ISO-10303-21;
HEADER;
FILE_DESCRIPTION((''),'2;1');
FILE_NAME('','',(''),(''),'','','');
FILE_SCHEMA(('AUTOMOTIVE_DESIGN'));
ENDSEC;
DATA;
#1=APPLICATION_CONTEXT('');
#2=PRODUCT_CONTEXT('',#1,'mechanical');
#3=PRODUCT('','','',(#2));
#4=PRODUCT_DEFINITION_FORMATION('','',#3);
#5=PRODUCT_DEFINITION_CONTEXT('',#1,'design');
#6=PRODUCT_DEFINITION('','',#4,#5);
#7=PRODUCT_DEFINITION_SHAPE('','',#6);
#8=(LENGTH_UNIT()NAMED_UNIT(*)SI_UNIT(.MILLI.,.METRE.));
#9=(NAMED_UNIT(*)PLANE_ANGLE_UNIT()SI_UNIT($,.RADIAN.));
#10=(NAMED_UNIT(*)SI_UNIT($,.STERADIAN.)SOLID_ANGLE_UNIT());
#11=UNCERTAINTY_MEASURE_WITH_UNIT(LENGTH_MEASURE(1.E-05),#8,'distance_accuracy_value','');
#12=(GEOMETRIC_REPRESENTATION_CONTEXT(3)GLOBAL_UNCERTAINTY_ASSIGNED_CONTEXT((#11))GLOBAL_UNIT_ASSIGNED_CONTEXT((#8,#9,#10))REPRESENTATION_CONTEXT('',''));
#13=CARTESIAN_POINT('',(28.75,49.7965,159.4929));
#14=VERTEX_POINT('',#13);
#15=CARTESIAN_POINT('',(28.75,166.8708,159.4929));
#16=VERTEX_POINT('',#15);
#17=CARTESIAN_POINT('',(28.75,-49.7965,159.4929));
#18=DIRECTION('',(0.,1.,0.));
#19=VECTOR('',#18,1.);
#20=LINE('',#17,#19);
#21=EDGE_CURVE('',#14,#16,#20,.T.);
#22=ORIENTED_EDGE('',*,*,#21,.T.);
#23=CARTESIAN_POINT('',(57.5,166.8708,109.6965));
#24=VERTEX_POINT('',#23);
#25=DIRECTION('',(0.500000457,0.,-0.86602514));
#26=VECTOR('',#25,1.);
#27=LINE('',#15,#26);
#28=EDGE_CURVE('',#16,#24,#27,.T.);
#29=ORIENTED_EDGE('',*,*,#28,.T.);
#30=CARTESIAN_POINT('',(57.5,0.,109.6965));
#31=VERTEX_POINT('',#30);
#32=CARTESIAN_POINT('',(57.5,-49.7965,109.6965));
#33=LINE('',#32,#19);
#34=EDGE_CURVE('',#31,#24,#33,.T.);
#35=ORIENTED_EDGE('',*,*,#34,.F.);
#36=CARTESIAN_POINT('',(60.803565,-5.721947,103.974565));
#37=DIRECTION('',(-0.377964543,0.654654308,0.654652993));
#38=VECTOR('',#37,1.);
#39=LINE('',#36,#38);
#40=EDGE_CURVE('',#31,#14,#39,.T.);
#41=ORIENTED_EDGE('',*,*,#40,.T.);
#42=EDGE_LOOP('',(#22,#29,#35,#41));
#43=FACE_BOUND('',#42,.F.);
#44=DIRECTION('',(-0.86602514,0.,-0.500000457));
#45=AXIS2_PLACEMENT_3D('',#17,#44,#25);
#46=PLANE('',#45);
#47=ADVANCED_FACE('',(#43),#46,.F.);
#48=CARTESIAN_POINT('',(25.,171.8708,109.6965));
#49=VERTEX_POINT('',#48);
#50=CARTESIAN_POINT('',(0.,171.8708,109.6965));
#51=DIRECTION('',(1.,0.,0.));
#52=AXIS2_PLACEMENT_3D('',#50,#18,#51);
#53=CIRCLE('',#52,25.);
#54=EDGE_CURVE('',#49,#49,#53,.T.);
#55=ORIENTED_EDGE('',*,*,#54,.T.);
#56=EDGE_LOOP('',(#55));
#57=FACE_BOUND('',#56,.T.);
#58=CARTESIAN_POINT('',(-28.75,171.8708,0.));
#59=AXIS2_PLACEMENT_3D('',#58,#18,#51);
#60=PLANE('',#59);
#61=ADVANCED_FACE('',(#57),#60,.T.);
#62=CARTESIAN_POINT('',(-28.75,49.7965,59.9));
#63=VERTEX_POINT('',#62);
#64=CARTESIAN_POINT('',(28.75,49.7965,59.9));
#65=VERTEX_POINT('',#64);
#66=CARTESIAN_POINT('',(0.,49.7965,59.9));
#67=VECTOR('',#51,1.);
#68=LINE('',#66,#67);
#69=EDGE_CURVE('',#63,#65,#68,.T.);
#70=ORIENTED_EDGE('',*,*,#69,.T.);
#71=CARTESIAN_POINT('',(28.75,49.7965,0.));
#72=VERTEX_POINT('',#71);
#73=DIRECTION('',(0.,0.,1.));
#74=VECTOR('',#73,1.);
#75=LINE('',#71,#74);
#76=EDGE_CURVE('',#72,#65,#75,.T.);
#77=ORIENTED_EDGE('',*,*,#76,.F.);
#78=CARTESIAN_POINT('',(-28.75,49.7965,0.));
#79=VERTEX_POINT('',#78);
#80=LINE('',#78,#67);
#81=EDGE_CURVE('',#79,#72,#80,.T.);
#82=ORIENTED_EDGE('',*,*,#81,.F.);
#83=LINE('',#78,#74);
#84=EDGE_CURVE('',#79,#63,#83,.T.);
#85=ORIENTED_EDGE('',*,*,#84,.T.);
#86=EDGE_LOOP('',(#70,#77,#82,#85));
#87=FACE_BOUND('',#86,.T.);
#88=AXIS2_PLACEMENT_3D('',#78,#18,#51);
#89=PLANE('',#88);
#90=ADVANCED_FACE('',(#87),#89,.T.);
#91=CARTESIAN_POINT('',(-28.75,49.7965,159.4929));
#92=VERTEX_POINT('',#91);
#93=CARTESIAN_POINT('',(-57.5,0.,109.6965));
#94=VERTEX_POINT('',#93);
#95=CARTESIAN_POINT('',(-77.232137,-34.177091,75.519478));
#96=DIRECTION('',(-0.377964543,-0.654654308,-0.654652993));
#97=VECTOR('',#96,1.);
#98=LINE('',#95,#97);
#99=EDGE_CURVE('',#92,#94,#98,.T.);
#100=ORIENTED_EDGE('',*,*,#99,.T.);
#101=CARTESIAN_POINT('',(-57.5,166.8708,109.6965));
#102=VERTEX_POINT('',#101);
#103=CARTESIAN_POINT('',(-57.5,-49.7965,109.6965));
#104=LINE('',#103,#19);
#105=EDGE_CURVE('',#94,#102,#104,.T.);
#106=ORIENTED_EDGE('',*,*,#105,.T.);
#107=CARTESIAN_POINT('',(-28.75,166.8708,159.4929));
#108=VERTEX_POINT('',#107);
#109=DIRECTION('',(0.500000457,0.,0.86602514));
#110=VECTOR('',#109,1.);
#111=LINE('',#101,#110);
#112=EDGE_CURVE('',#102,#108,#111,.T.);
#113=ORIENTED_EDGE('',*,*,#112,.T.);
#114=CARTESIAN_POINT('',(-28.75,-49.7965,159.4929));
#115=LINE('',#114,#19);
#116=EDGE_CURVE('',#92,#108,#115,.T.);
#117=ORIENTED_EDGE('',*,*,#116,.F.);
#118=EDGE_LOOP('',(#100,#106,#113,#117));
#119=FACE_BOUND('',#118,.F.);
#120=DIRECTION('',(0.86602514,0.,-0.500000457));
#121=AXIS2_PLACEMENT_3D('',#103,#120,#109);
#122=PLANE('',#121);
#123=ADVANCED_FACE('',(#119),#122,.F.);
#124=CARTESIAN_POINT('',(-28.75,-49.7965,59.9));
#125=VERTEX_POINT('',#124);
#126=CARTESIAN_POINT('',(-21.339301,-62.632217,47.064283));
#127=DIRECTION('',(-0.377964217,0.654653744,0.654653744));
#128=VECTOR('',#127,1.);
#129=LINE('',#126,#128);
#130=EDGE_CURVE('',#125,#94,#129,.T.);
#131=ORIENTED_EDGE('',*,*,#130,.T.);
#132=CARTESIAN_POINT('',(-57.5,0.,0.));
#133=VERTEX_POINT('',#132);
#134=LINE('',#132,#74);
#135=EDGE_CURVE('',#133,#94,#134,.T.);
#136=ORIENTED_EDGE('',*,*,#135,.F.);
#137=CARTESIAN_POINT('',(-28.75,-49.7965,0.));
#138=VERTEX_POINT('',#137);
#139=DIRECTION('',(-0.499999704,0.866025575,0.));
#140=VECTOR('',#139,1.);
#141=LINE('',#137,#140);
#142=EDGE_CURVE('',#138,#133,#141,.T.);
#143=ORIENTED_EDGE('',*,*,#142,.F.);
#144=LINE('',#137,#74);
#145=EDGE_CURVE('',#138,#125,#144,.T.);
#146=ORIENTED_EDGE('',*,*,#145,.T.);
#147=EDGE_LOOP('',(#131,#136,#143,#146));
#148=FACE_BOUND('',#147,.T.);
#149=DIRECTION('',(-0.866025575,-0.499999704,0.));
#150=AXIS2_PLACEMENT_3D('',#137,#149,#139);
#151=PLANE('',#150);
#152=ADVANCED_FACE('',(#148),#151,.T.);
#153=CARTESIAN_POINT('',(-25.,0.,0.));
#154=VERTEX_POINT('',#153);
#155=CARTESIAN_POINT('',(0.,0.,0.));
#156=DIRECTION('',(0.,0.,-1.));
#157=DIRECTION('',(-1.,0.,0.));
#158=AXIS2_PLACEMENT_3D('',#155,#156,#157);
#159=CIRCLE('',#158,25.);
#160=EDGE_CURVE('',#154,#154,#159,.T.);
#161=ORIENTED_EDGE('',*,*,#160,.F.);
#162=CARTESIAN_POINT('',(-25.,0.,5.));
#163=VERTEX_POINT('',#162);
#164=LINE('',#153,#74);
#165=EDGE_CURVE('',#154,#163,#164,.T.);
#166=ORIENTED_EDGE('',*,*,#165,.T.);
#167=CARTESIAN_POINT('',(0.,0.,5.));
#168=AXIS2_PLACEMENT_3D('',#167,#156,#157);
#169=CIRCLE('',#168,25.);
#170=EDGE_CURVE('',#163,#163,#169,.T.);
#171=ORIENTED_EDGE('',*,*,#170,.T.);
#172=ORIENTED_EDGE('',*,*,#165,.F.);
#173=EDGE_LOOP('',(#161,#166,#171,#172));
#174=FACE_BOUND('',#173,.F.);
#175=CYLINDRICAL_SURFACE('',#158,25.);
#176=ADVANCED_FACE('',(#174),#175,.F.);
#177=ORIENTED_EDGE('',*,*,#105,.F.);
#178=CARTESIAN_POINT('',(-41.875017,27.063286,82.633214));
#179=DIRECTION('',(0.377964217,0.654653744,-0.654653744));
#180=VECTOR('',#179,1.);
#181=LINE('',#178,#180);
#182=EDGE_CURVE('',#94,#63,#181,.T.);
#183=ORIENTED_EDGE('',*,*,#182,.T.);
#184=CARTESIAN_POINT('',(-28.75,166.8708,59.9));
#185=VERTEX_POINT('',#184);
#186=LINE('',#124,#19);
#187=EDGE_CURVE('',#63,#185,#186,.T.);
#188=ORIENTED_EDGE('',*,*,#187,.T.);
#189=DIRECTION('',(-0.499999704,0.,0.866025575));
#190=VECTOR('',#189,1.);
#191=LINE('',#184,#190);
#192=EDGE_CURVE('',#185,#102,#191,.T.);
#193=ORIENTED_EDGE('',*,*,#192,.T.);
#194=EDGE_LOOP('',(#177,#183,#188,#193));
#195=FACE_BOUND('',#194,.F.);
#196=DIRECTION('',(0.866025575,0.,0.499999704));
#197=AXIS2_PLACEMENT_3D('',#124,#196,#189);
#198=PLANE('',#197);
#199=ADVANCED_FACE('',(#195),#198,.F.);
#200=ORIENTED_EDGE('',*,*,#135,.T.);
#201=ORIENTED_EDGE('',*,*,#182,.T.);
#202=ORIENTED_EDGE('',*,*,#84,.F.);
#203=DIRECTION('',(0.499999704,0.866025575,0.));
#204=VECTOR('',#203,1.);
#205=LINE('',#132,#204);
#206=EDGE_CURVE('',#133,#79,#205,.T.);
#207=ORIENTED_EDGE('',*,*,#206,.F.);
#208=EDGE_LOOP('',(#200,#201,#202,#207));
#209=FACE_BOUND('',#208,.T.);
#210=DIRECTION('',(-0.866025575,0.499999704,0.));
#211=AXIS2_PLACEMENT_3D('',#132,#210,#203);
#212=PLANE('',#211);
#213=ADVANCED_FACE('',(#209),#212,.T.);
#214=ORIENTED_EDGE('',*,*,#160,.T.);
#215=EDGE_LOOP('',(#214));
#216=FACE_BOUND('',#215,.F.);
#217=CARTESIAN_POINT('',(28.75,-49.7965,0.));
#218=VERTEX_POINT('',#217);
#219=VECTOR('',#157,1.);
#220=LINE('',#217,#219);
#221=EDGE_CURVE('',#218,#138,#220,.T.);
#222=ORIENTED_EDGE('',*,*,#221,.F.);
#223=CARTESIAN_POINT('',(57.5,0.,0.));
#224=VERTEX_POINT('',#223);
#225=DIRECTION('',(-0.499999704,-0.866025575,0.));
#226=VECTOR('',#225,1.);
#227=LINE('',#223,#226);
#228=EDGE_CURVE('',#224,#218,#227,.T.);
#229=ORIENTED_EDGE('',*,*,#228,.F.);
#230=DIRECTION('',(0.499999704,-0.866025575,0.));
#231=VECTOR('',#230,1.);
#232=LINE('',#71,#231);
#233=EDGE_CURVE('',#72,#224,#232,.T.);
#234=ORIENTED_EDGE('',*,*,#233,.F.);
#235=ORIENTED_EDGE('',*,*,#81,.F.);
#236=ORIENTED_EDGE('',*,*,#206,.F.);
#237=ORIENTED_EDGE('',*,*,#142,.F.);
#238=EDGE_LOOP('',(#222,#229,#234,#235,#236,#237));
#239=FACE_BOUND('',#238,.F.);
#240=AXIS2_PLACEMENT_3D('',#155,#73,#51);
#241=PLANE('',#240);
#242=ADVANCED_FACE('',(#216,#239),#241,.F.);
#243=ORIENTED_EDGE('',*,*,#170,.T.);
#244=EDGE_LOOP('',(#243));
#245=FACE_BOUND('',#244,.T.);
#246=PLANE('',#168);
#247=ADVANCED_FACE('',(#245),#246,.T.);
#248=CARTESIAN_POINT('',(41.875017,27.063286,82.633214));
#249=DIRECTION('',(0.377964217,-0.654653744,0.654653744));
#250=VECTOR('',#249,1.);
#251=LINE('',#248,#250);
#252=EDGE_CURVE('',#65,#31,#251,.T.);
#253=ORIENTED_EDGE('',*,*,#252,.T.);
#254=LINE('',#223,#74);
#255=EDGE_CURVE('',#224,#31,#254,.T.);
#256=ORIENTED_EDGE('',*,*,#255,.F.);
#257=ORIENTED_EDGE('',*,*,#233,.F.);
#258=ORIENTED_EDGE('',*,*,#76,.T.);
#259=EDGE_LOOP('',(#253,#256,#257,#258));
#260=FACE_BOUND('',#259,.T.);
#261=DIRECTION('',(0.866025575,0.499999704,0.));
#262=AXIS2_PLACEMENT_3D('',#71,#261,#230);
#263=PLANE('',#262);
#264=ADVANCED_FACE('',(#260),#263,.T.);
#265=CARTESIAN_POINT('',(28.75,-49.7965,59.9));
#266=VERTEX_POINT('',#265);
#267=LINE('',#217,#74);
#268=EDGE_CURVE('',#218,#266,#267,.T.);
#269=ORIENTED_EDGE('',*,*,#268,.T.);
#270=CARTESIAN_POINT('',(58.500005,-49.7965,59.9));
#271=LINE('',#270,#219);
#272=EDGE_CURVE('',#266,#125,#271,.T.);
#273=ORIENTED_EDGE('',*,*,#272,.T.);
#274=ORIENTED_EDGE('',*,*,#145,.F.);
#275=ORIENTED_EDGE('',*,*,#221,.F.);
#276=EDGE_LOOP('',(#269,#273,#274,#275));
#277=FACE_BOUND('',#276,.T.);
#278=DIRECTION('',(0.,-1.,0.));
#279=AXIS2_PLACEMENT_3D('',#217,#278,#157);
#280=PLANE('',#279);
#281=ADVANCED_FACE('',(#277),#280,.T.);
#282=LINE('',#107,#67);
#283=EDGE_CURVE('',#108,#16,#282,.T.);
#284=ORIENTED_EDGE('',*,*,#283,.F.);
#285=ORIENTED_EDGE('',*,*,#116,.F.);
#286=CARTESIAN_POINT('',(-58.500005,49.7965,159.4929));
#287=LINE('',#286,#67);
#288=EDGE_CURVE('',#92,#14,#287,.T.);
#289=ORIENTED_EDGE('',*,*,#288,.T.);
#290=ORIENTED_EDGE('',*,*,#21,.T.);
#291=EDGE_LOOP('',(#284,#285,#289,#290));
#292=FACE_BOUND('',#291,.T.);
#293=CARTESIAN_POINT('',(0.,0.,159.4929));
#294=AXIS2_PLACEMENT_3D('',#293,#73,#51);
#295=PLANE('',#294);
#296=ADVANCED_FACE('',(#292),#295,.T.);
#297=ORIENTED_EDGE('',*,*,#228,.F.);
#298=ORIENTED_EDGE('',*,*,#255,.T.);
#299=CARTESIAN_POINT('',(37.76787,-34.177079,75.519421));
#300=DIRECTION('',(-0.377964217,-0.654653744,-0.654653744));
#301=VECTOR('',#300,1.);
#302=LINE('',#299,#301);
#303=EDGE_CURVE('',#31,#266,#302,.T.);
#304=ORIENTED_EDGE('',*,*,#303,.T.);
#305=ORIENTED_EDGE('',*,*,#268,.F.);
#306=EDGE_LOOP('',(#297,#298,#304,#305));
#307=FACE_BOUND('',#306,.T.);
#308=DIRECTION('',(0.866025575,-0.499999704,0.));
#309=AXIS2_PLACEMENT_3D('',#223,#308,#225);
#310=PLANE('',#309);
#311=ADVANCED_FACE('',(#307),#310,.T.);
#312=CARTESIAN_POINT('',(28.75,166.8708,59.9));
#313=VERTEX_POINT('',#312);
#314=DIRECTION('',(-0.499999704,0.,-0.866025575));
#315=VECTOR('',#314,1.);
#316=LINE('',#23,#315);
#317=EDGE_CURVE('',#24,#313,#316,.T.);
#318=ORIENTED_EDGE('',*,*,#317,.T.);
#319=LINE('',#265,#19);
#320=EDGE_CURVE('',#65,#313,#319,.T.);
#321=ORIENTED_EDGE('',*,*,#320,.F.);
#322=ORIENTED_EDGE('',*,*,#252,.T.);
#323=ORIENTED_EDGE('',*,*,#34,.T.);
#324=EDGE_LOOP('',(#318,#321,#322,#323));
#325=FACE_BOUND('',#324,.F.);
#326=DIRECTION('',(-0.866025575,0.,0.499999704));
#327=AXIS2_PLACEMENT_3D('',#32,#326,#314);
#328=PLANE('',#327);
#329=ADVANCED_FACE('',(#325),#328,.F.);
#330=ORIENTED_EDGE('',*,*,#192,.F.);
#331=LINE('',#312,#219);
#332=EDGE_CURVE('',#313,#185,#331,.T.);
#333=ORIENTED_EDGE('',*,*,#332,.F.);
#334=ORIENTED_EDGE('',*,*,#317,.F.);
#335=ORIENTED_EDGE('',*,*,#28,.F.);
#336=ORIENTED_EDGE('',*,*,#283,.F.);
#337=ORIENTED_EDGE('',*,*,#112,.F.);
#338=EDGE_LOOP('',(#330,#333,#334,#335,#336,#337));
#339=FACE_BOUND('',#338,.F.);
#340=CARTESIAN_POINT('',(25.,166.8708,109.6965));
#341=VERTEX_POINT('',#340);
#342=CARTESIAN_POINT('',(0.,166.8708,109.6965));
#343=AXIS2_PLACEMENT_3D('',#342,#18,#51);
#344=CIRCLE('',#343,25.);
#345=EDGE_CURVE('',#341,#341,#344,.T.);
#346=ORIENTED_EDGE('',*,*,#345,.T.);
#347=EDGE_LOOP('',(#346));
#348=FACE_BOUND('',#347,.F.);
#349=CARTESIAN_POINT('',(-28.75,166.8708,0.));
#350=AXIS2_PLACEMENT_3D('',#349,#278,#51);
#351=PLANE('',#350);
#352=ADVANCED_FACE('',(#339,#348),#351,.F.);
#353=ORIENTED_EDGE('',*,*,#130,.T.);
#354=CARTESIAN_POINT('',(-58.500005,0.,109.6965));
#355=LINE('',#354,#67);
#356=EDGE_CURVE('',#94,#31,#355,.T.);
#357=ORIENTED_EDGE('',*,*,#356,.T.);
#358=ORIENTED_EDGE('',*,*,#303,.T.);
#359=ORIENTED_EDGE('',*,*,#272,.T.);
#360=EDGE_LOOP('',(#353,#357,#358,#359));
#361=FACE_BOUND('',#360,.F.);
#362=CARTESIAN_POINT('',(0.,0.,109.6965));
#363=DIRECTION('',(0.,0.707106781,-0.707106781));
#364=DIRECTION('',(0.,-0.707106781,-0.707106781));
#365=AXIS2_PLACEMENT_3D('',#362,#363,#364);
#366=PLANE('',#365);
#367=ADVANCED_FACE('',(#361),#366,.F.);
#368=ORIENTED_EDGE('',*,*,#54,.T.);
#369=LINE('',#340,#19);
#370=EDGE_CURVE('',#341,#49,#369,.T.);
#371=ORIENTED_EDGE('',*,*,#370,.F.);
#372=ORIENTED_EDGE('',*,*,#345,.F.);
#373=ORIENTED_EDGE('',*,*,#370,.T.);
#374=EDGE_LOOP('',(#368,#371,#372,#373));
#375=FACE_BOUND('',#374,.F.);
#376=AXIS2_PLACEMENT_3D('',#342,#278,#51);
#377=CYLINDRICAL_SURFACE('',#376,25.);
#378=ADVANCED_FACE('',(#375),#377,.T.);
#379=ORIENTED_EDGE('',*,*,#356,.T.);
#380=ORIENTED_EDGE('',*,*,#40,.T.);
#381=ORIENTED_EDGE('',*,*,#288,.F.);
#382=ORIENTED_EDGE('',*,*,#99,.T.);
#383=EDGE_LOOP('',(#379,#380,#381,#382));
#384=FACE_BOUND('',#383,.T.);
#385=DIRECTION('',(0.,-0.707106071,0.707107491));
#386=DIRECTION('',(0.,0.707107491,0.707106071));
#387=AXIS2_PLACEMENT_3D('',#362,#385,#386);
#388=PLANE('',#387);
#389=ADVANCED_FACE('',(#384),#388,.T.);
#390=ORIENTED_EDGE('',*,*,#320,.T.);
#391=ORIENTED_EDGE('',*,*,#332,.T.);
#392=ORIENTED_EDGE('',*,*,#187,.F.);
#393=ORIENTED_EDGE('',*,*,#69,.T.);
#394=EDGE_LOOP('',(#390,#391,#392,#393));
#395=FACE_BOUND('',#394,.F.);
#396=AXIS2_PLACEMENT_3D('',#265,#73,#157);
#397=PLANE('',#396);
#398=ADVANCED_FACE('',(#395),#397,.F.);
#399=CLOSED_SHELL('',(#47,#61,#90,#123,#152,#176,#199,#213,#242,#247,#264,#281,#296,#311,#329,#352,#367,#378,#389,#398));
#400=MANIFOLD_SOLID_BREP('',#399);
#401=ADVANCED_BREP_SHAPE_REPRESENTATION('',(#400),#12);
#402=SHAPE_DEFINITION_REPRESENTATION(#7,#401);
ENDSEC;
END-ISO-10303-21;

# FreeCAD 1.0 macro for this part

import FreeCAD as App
import Part
import Sketcher
from FreeCAD import Vector
Q = App.Units.Quantity


def add_polygon(sketch, points):
    """Adds a closed chain of lines whose ends are joined by coincident constraints."""
    first, n = sketch.GeometryCount, len(points)
    for a, b in zip(points, points[1:] + points[:1]):
        sketch.addGeometry(Part.LineSegment(App.Vector(*a, 0), App.Vector(*b, 0)), False)
    for i in range(n):
        sketch.addConstraint(Sketcher.Constraint("Coincident", first + i, 2, first + (i + 1) % n, 1))

doc = App.newDocument("Part")
body = doc.addObject("PartDesign::Body", "Body")

# Sketch on XY plane
sketch1 = doc.addObject("Sketcher::SketchObject", "Sketch")
body.addObject(sketch1)
sketch1.AttachmentSupport = (doc.XY_Plane, [""])
sketch1.MapMode = "FlatFace"
add_polygon(sketch1, [(29, -50), (58, 0), (29, 50), (-29, 50), (-58, 0), (-29, -50)])  # lines 0-5
sketch1.addConstraint(Sketcher.Constraint("Horizontal", 2))
sketch1.addConstraint(Sketcher.Constraint("Horizontal", 5))
sketch1.addConstraint(Sketcher.Constraint("Symmetric", 0, 2, 3, 2, -1, 1))
sketch1.addConstraint(Sketcher.Constraint("Symmetric", 1, 2, 4, 2, -1, 1))
sketch1.addConstraint(Sketcher.Constraint("PointOnObject", 0, 2, -1))
sketch1.addConstraint(Sketcher.Constraint("Parallel", 0, 3))
sketch1.addConstraint(Sketcher.Constraint("Vertical", 2, 2, 4, 2))
sketch1.addConstraint(Sketcher.Constraint("DistanceX", 3, 2, 0, 2, 115.0))
sketch1.addConstraint(Sketcher.Constraint("Angle", 0, Q("60 deg")))
sketch1.addConstraint(Sketcher.Constraint("DistanceX", 2, 2, 2, 1, 57.5))
pad1 = doc.addObject("PartDesign::Pad", "Pad")
body.addObject(pad1)
pad1.Profile = sketch1
pad1.Length = 159.4929

# Sketch on XZ plane
sketch2 = doc.addObject("Sketcher::SketchObject", "Sketch001")
body.addObject(sketch2)
sketch2.AttachmentSupport = (doc.XZ_Plane, [""])
sketch2.MapMode = "FlatFace"
sketch2.AttachmentOffset = App.Placement(Vector(0, 0, 49.7965), App.Rotation())
add_polygon(sketch2, [(-29, 159), (-58, 110), (-29, 60), (29, 60), (58, 110), (29, 159)])  # lines 0-5
sketch2.addConstraint(Sketcher.Constraint("Horizontal", 2))
sketch2.addConstraint(Sketcher.Constraint("Horizontal", 5))
sketch2.addConstraint(Sketcher.Constraint("Symmetric", 0, 2, 3, 2, -2))
sketch2.addConstraint(Sketcher.Constraint("Parallel", 0, 3))
sketch2.addConstraint(Sketcher.Constraint("Parallel", 1, 4))
sketch2.addConstraint(Sketcher.Constraint("Vertical", 2, 2, 4, 2))
sketch2.addConstraint(Sketcher.Constraint("Vertical", 1, 2, 5, 2))
sketch2.addConstraint(Sketcher.Constraint("DistanceX", 0, 2, 3, 2, 115.0))
sketch2.addConstraint(Sketcher.Constraint("Angle", 0, Q("-120 deg")))
sketch2.addConstraint(Sketcher.Constraint("DistanceX", 2, 1, 2, 2, 57.5))
sketch2.addConstraint(Sketcher.Constraint("DistanceY", -1, 1, 1, 2, 59.9))
pad2 = doc.addObject("PartDesign::Pad", "Pad001")
body.addObject(pad2)
pad2.Profile = sketch2
pad2.Length = 216.6673
pad2.Reversed = True

# Sketch on YZ plane
sketch3 = doc.addObject("Sketcher::SketchObject", "Sketch002")
body.addObject(sketch3)
sketch3.AttachmentSupport = (doc.YZ_Plane, [""])
sketch3.MapMode = "FlatFace"
add_polygon(sketch3, [(-50, 60), (0, 110), (50, 159), (-50, 159)])  # lines 0-3
sketch3.addConstraint(Sketcher.Constraint("Horizontal", 2))
sketch3.addConstraint(Sketcher.Constraint("Vertical", 3))
sketch3.addConstraint(Sketcher.Constraint("PointOnObject", 0, 2, -2))
sketch3.addConstraint(Sketcher.Constraint("Parallel", 0, 1))
sketch3.addConstraint(Sketcher.Constraint("Equal", 2, 3))
sketch3.addConstraint(Sketcher.Constraint("Equal", 0, 1))
sketch3.addConstraint(Sketcher.Constraint("DistanceY", -1, 1, 3, 2, 59.9))
sketch3.addConstraint(Sketcher.Constraint("DistanceX", 2, 2, 2, 1, 99.593))
pocket1 = doc.addObject("PartDesign::Pocket", "Pocket")
body.addObject(pocket1)
pocket1.Profile = sketch3
pocket1.Type = "ThroughAll"
pocket1.Midplane = True

# Sketch on XY plane
sketch4 = doc.addObject("Sketcher::SketchObject", "Sketch003")
body.addObject(sketch4)
sketch4.AttachmentSupport = (doc.XY_Plane, [""])
sketch4.MapMode = "FlatFace"
sketch4.addGeometry(Part.Circle(Vector(0, 0, 0), Vector(0, 0, 1), 25), False)
sketch4.addConstraint(Sketcher.Constraint("Coincident", 0, 3, -1, 1))
sketch4.addConstraint(Sketcher.Constraint("Diameter", 0, 50.0))
pocket2 = doc.addObject("PartDesign::Pocket", "Pocket001")
body.addObject(pocket2)
pocket2.Profile = sketch4
pocket2.Length = 5
pocket2.Reversed = True

# Sketch on XZ plane
sketch5 = doc.addObject("Sketcher::SketchObject", "Sketch004")
body.addObject(sketch5)
sketch5.AttachmentSupport = (doc.XZ_Plane, [""])
sketch5.MapMode = "FlatFace"
sketch5.AttachmentOffset = App.Placement(Vector(0, 0, -166.8708), App.Rotation())
sketch5.addGeometry(Part.Circle(Vector(0, 110, 0), Vector(0, 0, 1), 25), False)
sketch5.addConstraint(Sketcher.Constraint("PointOnObject", 0, 3, -2))
sketch5.addConstraint(Sketcher.Constraint("Diameter", 0, 50.0))
sketch5.addConstraint(Sketcher.Constraint("DistanceY", -1, 1, 0, 3, 109.6965))
pad3 = doc.addObject("PartDesign::Pad", "Pad002")
body.addObject(pad3)
pad3.Profile = sketch5
pad3.Length = 5
pad3.Reversed = True

doc.recompute()
